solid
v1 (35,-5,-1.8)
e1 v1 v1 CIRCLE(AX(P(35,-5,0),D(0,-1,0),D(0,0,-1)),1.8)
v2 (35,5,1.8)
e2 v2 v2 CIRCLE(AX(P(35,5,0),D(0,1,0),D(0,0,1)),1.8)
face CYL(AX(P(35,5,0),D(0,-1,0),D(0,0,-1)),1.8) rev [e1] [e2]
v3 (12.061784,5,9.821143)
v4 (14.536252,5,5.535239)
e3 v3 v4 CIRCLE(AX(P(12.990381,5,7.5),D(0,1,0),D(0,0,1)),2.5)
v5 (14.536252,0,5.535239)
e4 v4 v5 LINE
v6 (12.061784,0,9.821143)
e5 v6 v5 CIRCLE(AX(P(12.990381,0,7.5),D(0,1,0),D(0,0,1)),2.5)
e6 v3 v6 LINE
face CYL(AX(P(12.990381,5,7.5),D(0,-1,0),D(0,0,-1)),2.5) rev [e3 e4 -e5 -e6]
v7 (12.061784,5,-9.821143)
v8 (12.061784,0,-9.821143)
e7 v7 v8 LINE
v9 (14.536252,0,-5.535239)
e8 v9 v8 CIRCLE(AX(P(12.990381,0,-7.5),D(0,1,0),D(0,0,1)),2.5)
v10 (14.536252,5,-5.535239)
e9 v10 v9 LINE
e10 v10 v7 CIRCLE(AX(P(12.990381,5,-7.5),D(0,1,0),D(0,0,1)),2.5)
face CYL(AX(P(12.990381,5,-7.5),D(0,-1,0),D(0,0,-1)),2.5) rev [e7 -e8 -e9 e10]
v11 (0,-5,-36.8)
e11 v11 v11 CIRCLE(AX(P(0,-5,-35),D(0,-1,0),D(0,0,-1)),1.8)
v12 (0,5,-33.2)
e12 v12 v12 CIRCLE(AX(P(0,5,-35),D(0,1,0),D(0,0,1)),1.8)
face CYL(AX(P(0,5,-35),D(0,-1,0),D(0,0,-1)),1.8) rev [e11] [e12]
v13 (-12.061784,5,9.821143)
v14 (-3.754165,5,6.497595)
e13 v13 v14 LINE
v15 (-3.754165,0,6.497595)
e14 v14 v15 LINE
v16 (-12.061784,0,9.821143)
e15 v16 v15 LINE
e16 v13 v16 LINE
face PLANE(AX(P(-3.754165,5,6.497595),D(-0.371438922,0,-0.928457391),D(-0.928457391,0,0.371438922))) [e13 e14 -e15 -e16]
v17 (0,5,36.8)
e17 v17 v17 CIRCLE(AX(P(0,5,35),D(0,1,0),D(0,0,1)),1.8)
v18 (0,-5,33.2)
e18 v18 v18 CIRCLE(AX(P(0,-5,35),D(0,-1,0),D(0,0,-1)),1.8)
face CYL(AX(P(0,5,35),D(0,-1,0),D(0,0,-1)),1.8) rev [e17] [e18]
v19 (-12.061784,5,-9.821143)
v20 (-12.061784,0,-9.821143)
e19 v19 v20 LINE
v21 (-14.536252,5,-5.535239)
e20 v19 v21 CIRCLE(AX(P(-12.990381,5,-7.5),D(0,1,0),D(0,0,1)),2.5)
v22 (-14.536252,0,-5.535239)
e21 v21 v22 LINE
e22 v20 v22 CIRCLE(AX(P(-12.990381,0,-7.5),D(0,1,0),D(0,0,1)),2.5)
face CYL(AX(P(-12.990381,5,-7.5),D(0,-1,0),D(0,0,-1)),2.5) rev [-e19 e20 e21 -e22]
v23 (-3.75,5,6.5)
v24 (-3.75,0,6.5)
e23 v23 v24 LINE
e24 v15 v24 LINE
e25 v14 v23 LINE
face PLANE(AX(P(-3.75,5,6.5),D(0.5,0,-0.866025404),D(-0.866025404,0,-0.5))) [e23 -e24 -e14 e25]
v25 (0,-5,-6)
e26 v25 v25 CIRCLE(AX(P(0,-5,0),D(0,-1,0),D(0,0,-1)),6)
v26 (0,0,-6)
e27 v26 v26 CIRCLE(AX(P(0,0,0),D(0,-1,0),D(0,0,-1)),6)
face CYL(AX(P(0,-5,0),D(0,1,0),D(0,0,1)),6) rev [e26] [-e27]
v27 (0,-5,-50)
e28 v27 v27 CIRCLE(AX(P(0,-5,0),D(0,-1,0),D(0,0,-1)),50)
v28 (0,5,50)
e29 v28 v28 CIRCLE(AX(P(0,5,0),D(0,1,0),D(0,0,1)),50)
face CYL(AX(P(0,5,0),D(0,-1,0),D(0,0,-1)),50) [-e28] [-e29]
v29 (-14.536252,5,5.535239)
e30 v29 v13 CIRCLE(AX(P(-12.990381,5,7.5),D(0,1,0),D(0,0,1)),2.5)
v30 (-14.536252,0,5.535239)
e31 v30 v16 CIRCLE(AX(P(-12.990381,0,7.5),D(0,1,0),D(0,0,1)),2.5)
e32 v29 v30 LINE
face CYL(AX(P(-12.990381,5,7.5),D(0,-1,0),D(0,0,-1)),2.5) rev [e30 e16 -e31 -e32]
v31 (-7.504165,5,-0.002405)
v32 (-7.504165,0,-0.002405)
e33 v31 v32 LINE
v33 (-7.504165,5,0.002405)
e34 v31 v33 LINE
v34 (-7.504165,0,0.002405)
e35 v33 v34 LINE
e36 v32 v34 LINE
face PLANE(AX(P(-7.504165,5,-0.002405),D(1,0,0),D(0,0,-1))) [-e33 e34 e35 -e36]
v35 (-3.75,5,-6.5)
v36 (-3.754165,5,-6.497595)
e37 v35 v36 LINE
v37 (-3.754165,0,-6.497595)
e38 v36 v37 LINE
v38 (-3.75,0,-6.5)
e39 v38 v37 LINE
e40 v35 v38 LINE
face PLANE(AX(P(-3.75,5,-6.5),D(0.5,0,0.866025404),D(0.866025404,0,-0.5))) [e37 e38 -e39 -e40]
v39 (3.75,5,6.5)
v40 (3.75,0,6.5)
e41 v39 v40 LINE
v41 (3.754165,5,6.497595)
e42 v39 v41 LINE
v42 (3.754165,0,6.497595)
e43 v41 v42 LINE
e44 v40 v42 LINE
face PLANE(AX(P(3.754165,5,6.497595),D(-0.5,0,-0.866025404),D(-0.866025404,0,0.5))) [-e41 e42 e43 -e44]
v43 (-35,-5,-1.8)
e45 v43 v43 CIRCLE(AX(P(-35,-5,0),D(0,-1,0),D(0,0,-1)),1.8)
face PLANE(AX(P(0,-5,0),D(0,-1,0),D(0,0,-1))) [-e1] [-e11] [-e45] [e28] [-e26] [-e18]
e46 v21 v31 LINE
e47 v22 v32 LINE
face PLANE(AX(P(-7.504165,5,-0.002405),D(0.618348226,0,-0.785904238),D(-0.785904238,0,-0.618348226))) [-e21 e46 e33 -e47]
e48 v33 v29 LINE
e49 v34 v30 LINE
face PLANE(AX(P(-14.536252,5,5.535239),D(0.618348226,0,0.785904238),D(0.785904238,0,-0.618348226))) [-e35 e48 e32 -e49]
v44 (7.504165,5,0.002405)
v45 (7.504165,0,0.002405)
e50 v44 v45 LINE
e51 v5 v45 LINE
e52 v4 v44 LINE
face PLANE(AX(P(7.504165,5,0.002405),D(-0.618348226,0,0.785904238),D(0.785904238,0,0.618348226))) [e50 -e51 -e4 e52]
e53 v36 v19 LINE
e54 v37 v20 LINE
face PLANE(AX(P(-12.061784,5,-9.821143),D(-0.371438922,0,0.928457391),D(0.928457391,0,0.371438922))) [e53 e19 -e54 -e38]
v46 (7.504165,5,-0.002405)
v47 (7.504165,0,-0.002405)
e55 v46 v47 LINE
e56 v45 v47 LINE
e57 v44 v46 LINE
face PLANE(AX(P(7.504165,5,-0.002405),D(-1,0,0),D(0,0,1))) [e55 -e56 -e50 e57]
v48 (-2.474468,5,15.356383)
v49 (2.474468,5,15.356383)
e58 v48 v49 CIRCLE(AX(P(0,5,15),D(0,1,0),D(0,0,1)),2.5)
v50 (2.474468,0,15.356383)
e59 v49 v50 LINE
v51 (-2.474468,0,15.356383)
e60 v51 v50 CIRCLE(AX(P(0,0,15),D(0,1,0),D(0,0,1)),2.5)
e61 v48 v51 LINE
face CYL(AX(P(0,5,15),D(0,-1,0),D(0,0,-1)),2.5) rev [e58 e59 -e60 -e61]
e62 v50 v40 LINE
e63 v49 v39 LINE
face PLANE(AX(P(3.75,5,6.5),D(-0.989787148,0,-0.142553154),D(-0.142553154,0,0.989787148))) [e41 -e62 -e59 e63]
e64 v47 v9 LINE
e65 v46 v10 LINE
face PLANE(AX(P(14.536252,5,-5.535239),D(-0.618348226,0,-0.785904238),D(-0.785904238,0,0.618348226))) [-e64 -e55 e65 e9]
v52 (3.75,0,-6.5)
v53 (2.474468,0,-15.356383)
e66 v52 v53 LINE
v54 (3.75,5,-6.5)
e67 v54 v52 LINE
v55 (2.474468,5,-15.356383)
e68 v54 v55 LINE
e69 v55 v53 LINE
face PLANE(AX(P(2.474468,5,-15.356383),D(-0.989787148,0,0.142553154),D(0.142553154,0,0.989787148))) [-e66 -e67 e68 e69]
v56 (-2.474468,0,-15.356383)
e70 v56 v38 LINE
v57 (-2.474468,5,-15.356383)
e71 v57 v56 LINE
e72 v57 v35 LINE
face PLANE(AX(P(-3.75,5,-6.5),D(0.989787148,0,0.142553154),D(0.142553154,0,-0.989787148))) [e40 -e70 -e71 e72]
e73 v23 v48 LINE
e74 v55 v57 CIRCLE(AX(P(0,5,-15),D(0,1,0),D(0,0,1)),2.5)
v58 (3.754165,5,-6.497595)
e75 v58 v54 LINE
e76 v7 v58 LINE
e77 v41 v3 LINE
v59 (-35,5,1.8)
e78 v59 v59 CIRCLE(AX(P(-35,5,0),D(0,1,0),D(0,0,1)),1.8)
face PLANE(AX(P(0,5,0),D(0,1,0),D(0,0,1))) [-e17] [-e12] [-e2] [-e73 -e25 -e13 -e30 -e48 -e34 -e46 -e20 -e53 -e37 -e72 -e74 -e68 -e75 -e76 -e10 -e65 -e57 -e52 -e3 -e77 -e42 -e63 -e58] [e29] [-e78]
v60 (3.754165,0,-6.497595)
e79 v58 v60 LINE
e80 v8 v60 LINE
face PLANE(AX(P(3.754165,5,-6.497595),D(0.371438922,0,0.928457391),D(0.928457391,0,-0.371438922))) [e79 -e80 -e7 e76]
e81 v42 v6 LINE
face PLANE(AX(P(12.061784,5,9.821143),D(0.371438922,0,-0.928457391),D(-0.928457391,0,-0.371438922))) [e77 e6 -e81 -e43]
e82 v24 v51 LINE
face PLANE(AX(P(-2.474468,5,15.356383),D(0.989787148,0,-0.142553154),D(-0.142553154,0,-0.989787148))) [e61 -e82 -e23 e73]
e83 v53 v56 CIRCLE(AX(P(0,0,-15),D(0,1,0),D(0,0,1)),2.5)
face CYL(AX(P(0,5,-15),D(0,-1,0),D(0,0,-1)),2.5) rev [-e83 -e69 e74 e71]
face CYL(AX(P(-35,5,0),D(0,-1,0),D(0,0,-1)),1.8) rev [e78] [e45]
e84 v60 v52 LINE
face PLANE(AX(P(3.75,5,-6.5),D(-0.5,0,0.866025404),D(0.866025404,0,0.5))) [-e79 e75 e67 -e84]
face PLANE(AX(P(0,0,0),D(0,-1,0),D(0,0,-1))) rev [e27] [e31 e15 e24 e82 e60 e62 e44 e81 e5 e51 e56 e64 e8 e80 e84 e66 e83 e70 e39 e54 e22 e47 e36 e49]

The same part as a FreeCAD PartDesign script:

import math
import FreeCAD as App
import Part
import Sketcher

V = App.Vector
Q = App.Units.Quantity

doc = App.newDocument("Part")
body = doc.addObject("PartDesign::Body", "Body")

sketch1 = doc.addObject("Sketcher::SketchObject", "Sketch")
body.addObject(sketch1)
sketch1.AttachmentSupport = (doc.XZ_Plane, [""])
sketch1.MapMode = "FlatFace"
sketch1.addGeometry(Part.Circle(V(0, 0, 0), V(0, 0, 1), 50), False)
sketch1.addGeometry(Part.Circle(V(0, -35, 0), V(0, 0, 1), 1.8), False)
sketch1.addGeometry(Part.Circle(V(-35, 0, 0), V(0, 0, 1), 1.8), False)
sketch1.addGeometry(Part.Circle(V(35, 0, 0), V(0, 0, 1), 1.8), False)
sketch1.addGeometry(Part.LineSegment(V(-3.7542, -6.4976, 0), V(-3.75, -6.5, 0)), False)
sketch1.addGeometry(Part.LineSegment(V(-3.75, -6.5, 0), V(-2.4745, -15.3564, 0)), False)
sketch1.addGeometry(Part.ArcOfCircle(Part.Circle(V(0, -15, 0), V(0, 0, 1), 2.5), math.radians(-172), math.radians(-8)), False)
sketch1.addGeometry(Part.LineSegment(V(2.4745, -15.3564, 0), V(3.75, -6.5, 0)), False)
sketch1.addGeometry(Part.LineSegment(V(3.75, -6.5, 0), V(3.7542, -6.4976, 0)), False)
sketch1.addGeometry(Part.LineSegment(V(3.7542, -6.4976, 0), V(12.0618, -9.8211, 0)), False)
sketch1.addGeometry(Part.ArcOfCircle(Part.Circle(V(12.9904, -7.5, 0), V(0, 0, 1), 2.5), math.radians(-112), math.radians(52)), False)
sketch1.addGeometry(Part.LineSegment(V(14.5363, -5.5352, 0), V(7.5042, -0.0024, 0)), False)
sketch1.addGeometry(Part.LineSegment(V(7.5042, -0.0024, 0), V(7.5042, 0.0024, 0)), False)
sketch1.addGeometry(Part.LineSegment(V(7.5042, 0.0024, 0), V(14.5363, 5.5352, 0)), False)
sketch1.addGeometry(Part.ArcOfCircle(Part.Circle(V(12.9904, 7.5, 0), V(0, 0, 1), 2.5), math.radians(-52), math.radians(112)), False)
sketch1.addGeometry(Part.LineSegment(V(12.0618, 9.8211, 0), V(3.7542, 6.4976, 0)), False)
sketch1.addGeometry(Part.LineSegment(V(3.7542, 6.4976, 0), V(3.75, 6.5, 0)), False)
sketch1.addGeometry(Part.LineSegment(V(3.75, 6.5, 0), V(2.4745, 15.3564, 0)), False)
sketch1.addGeometry(Part.ArcOfCircle(Part.Circle(V(0, 15, 0), V(0, 0, 1), 2.5), math.radians(8), math.radians(172)), False)
sketch1.addGeometry(Part.LineSegment(V(-2.4745, 15.3564, 0), V(-3.75, 6.5, 0)), False)
sketch1.addGeometry(Part.LineSegment(V(-3.75, 6.5, 0), V(-3.7542, 6.4976, 0)), False)
sketch1.addGeometry(Part.LineSegment(V(-3.7542, 6.4976, 0), V(-12.0618, 9.8211, 0)), False)
sketch1.addGeometry(Part.ArcOfCircle(Part.Circle(V(-12.9904, 7.5, 0), V(0, 0, 1), 2.5), math.radians(68), math.radians(232)), False)
sketch1.addGeometry(Part.LineSegment(V(-14.5363, 5.5352, 0), V(-7.5042, 0.0024, 0)), False)
sketch1.addGeometry(Part.LineSegment(V(-7.5042, 0.0024, 0), V(-7.5042, -0.0024, 0)), False)
sketch1.addGeometry(Part.LineSegment(V(-7.5042, -0.0024, 0), V(-14.5363, -5.5352, 0)), False)
sketch1.addGeometry(Part.ArcOfCircle(Part.Circle(V(-12.9904, -7.5, 0), V(0, 0, 1), 2.5), math.radians(128), math.radians(292)), False)
sketch1.addGeometry(Part.LineSegment(V(-12.0618, -9.8211, 0), V(-3.7542, -6.4976, 0)), False)
sketch1.addGeometry(Part.Circle(V(0, 35, 0), V(0, 0, 1), 1.8), False)
sketch1.addConstraint(Sketcher.Constraint("Coincident", 4, 2, 5, 1))
sketch1.addConstraint(Sketcher.Constraint("Tangent", 5, 2, 6, 1))
sketch1.addConstraint(Sketcher.Constraint("Tangent", 6, 2, 7, 1))
sketch1.addConstraint(Sketcher.Constraint("Coincident", 7, 2, 8, 1))
sketch1.addConstraint(Sketcher.Constraint("Coincident", 8, 2, 9, 1))
sketch1.addConstraint(Sketcher.Constraint("Tangent", 9, 2, 10, 1))
sketch1.addConstraint(Sketcher.Constraint("Tangent", 10, 2, 11, 1))
sketch1.addConstraint(Sketcher.Constraint("Coincident", 11, 2, 12, 1))
sketch1.addConstraint(Sketcher.Constraint("Coincident", 12, 2, 13, 1))
sketch1.addConstraint(Sketcher.Constraint("Tangent", 13, 2, 14, 1))
sketch1.addConstraint(Sketcher.Constraint("Tangent", 14, 2, 15, 1))
sketch1.addConstraint(Sketcher.Constraint("Coincident", 15, 2, 16, 1))
sketch1.addConstraint(Sketcher.Constraint("Coincident", 16, 2, 17, 1))
sketch1.addConstraint(Sketcher.Constraint("Tangent", 17, 2, 18, 1))
sketch1.addConstraint(Sketcher.Constraint("Tangent", 18, 2, 19, 1))
sketch1.addConstraint(Sketcher.Constraint("Coincident", 19, 2, 20, 1))
sketch1.addConstraint(Sketcher.Constraint("Coincident", 20, 2, 21, 1))
sketch1.addConstraint(Sketcher.Constraint("Tangent", 21, 2, 22, 1))
sketch1.addConstraint(Sketcher.Constraint("Tangent", 22, 2, 23, 1))
sketch1.addConstraint(Sketcher.Constraint("Coincident", 23, 2, 24, 1))
sketch1.addConstraint(Sketcher.Constraint("Coincident", 24, 2, 25, 1))
sketch1.addConstraint(Sketcher.Constraint("Tangent", 25, 2, 26, 1))
sketch1.addConstraint(Sketcher.Constraint("Tangent", 26, 2, 27, 1))
sketch1.addConstraint(Sketcher.Constraint("Coincident", 27, 2, 4, 1))
sketch1.addConstraint(Sketcher.Constraint("Vertical", 12))
sketch1.addConstraint(Sketcher.Constraint("Vertical", 24))
sketch1.addConstraint(Sketcher.Constraint("Coincident", 0, 3, -1, 1))
sketch1.addConstraint(Sketcher.Constraint("Equal", 1, 2))
sketch1.addConstraint(Sketcher.Constraint("Equal", 2, 3))
sketch1.addConstraint(Sketcher.Constraint("Equal", 6, 10))
sketch1.addConstraint(Sketcher.Constraint("Equal", 10, 14))
sketch1.addConstraint(Sketcher.Constraint("Equal", 14, 18))
sketch1.addConstraint(Sketcher.Constraint("Equal", 18, 22))
sketch1.addConstraint(Sketcher.Constraint("Equal", 22, 26))
sketch1.addConstraint(Sketcher.Constraint("Equal", 3, 28))
sketch1.addConstraint(Sketcher.Constraint("Symmetric", 2, 3, 3, 3, -1, 1))
sketch1.addConstraint(Sketcher.Constraint("Symmetric", 6, 3, 18, 3, -1, 1))
sketch1.addConstraint(Sketcher.Constraint("Symmetric", 10, 3, 22, 3, -1, 1))
sketch1.addConstraint(Sketcher.Constraint("Symmetric", 14, 3, 26, 3, -1, 1))
sketch1.addConstraint(Sketcher.Constraint("Symmetric", 1, 3, 28, 3, -1, 1))
sketch1.addConstraint(Sketcher.Constraint("Symmetric", 4, 2, 16, 2, -1, 1))
sketch1.addConstraint(Sketcher.Constraint("Symmetric", 7, 2, 19, 2, -1, 1))
sketch1.addConstraint(Sketcher.Constraint("Symmetric", 8, 2, 20, 2, -1, 1))
sketch1.addConstraint(Sketcher.Constraint("Symmetric", 11, 2, 23, 2, -1, 1))
sketch1.addConstraint(Sketcher.Constraint("Symmetric", 15, 2, 27, 2, -1, 1))
sketch1.addConstraint(Sketcher.Constraint("Symmetric", 14, 3, 22, 3, -2))
sketch1.addConstraint(Sketcher.Constraint("Symmetric", 5, 2, 6, 2, -2))
sketch1.addConstraint(Sketcher.Constraint("Symmetric", 15, 2, 20, 2, -2))
sketch1.addConstraint(Sketcher.Constraint("PointOnObject", 1, 3, -2))
sketch1.addConstraint(Sketcher.Constraint("PointOnObject", 2, 3, -1))
sketch1.addConstraint(Sketcher.Constraint("Parallel", 13, 25))
sketch1.addConstraint(Sketcher.Constraint("Horizontal", 4, 2, 7, 2))
sketch1.addConstraint(Sketcher.Constraint("Horizontal", 13, 2, 22, 2))
sketch1.addConstraint(Sketcher.Constraint("Equal", 7, 9))
sketch1.addConstraint(Sketcher.Constraint("Equal", 9, 11))
sketch1.addConstraint(Sketcher.Constraint("Diameter", 0, Q("100 mm")))
sketch1.addConstraint(Sketcher.Constraint("Diameter", 1, Q("3.6 mm")))
sketch1.addConstraint(Sketcher.Constraint("Radius", 6, Q("2.5 mm")))
sketch1.addConstraint(Sketcher.Constraint("Angle", 4, Q("-30 deg")))
sketch1.addConstraint(Sketcher.Constraint("DistanceY", 1, 3, -1, 1, Q("35 mm")))
sketch1.addConstraint(Sketcher.Constraint("DistanceX", 2, 3, -1, 1, Q("35 mm")))
sketch1.addConstraint(Sketcher.Constraint("DistanceY", 6, 3, -1, 1, Q("15 mm")))
sketch1.addConstraint(Sketcher.Constraint("DistanceY", 10, 3, 14, 3, Q("15 mm")))
sketch1.addConstraint(Sketcher.Constraint("DistanceY", 26, 3, 4, 2, Q("1 mm")))
sketch1.addConstraint(Sketcher.Constraint("DistanceX", 4, 2, 7, 2, Q("7.5 mm")))
sketch1.addConstraint(Sketcher.Constraint("DistanceY", 8, 2, 12, 2, Q("6.5 mm")))
sketch1.addConstraint(Sketcher.Constraint("DistanceX", 8, 2, 11, 2, Q("3.75 mm")))
pad1 = doc.addObject("PartDesign::Pad", "Pad")
body.addObject(pad1)
pad1.Profile = sketch1
pad1.Length = 5
pad1.Reversed = True

sketch2 = doc.addObject("Sketcher::SketchObject", "Sketch001")
body.addObject(sketch2)
sketch2.AttachmentSupport = (doc.XZ_Plane, [""])
sketch2.MapMode = "FlatFace"
sketch2.AttachmentOffset = App.Placement(V(0, 0, 5), App.Rotation())
sketch2.addGeometry(Part.Circle(V(0, 0, 0), V(0, 0, 1), 50), False)
sketch2.addGeometry(Part.Circle(V(0, 35, 0), V(0, 0, 1), 1.8), False)
sketch2.addGeometry(Part.Circle(V(-35, 0, 0), V(0, 0, 1), 1.8), False)
sketch2.addGeometry(Part.Circle(V(35, 0, 0), V(0, 0, 1), 1.8), False)
sketch2.addGeometry(Part.Circle(V(0, 0, 0), V(0, 0, 1), 6), False)
sketch2.addGeometry(Part.Circle(V(0, -35, 0), V(0, 0, 1), 1.8), False)
sketch2.addConstraint(Sketcher.Constraint("Coincident", 0, 3, -1, 1))
sketch2.addConstraint(Sketcher.Constraint("Coincident", 4, 3, -1, 1))
sketch2.addConstraint(Sketcher.Constraint("Equal", 1, 2))
sketch2.addConstraint(Sketcher.Constraint("Equal", 2, 3))
sketch2.addConstraint(Sketcher.Constraint("Equal", 3, 5))
sketch2.addConstraint(Sketcher.Constraint("Symmetric", 2, 3, 3, 3, -1, 1))
sketch2.addConstraint(Sketcher.Constraint("Symmetric", 1, 3, 5, 3, -1, 1))
sketch2.addConstraint(Sketcher.Constraint("PointOnObject", 1, 3, -2))
sketch2.addConstraint(Sketcher.Constraint("PointOnObject", 2, 3, -1))
sketch2.addConstraint(Sketcher.Constraint("Diameter", 0, Q("100 mm")))
sketch2.addConstraint(Sketcher.Constraint("Diameter", 4, Q("12 mm")))
sketch2.addConstraint(Sketcher.Constraint("Diameter", 1, Q("3.6 mm")))
sketch2.addConstraint(Sketcher.Constraint("DistanceY", -1, 1, 1, 3, Q("35 mm")))
sketch2.addConstraint(Sketcher.Constraint("DistanceX", 2, 3, -1, 1, Q("35 mm")))
pad2 = doc.addObject("PartDesign::Pad", "Pad001")
body.addObject(pad2)
pad2.Profile = sketch2
pad2.Length = 5
pad2.Reversed = True

doc.recompute()
